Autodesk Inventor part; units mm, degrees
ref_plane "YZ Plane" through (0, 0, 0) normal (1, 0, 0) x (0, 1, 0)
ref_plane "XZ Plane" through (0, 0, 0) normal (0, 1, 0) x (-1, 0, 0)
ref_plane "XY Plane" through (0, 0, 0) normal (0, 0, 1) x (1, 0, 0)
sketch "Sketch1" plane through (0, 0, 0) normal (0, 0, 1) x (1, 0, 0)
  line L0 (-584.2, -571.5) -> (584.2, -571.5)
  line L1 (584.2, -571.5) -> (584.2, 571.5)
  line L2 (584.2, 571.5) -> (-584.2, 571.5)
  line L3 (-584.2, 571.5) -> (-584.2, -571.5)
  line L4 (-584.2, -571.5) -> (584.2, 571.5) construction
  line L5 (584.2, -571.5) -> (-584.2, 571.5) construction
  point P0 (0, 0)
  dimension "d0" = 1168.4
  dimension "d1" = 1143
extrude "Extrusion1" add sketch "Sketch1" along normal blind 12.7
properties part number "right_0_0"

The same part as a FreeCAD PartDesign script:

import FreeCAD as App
import Part
import Sketcher

V = App.Vector
Q = App.Units.Quantity

doc = App.newDocument("Part")
body = doc.addObject("PartDesign::Body", "Body")

sketch1 = body.newObject("Sketcher::SketchObject", "Sketch")
sketch1.AttachmentSupport = (doc.getObject("XY_Plane"), [""])
sketch1.MapMode = "FlatFace"
sketch1.addGeometry(Part.LineSegment(V(-584, 572, 0), V(-584, -572, 0)), False)
sketch1.addGeometry(Part.LineSegment(V(-584, -572, 0), V(584, -572, 0)), False)
sketch1.addGeometry(Part.LineSegment(V(584, -572, 0), V(584, 572, 0)), False)
sketch1.addGeometry(Part.LineSegment(V(584, 572, 0), V(-584, 572, 0)), False)
sketch1.addConstraint(Sketcher.Constraint("Coincident", 0, 2, 1, 1))
sketch1.addConstraint(Sketcher.Constraint("Coincident", 1, 2, 2, 1))
sketch1.addConstraint(Sketcher.Constraint("Coincident", 2, 2, 3, 1))
sketch1.addConstraint(Sketcher.Constraint("Coincident", 3, 2, 0, 1))
sketch1.addConstraint(Sketcher.Constraint("Vertical", 0))
sketch1.addConstraint(Sketcher.Constraint("Horizontal", 1))
sketch1.addConstraint(Sketcher.Constraint("Vertical", 2))
sketch1.addConstraint(Sketcher.Constraint("Horizontal", 3))
sketch1.addConstraint(Sketcher.Constraint("Symmetric", 0, 2, 2, 2, -1, 1))
sketch1.addConstraint(Sketcher.Constraint("DistanceX", 1, 1, 1, 2, Q("46 in")))
sketch1.addConstraint(Sketcher.Constraint("DistanceY", 0, 2, 0, 1, Q("45 in")))
pad1 = body.newObject("PartDesign::Pad", "Pad")
pad1.Profile = sketch1
pad1.Length = Q("0.5 in")

doc.recompute()
